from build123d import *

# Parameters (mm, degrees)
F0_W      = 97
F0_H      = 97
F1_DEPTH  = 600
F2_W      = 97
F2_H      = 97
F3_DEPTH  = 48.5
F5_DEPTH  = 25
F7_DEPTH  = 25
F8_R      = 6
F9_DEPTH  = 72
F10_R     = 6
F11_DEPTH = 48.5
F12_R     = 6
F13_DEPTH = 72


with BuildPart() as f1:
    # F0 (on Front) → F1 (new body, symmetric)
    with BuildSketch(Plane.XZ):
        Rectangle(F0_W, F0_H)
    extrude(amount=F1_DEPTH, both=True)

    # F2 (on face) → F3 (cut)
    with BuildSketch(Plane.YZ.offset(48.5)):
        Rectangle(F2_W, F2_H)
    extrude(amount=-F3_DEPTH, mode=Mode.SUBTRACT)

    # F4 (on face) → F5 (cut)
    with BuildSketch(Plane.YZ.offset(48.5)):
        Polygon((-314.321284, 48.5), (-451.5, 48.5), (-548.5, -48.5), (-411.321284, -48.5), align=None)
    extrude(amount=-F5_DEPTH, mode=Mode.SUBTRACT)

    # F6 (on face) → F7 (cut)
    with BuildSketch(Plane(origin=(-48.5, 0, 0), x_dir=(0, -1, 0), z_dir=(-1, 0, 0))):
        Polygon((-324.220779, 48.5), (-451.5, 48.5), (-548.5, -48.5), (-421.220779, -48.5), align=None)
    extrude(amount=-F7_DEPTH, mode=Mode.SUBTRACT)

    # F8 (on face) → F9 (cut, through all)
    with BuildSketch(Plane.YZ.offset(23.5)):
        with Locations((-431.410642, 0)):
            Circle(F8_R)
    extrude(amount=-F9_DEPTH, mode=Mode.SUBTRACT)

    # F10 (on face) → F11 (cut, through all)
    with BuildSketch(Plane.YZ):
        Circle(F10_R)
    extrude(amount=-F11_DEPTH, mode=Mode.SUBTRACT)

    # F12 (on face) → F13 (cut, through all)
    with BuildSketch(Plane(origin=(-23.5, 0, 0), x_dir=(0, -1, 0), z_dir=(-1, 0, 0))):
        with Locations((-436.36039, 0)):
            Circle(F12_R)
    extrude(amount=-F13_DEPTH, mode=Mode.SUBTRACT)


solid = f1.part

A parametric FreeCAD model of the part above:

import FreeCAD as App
import Part
import Sketcher
from FreeCAD import Vector
Q = App.Units.Quantity

doc = App.newDocument("Part")
body = doc.addObject("PartDesign::Body", "Body")

# Sketch on XZ plane
sketch1 = body.newObject("Sketcher::SketchObject", "Sketch")
sketch1.AttachmentSupport = (doc.getObject("XZ_Plane"), [""])
sketch1.MapMode = "FlatFace"
sketch1.addGeometry(Part.LineSegment(Vector(-48.5, 48.5, 0), Vector(-48.5, -48.5, 0)), False)
sketch1.addGeometry(Part.LineSegment(Vector(-48.5, -48.5, 0), Vector(48.5, -48.5, 0)), False)
sketch1.addGeometry(Part.LineSegment(Vector(48.5, -48.5, 0), Vector(48.5, 48.5, 0)), False)
sketch1.addGeometry(Part.LineSegment(Vector(48.5, 48.5, 0), Vector(-48.5, 48.5, 0)), False)
sketch1.addConstraint(Sketcher.Constraint("Coincident", 0, 2, 1, 1))
sketch1.addConstraint(Sketcher.Constraint("Coincident", 1, 2, 2, 1))
sketch1.addConstraint(Sketcher.Constraint("Coincident", 2, 2, 3, 1))
sketch1.addConstraint(Sketcher.Constraint("Coincident", 3, 2, 0, 1))
sketch1.addConstraint(Sketcher.Constraint("Vertical", 0))
sketch1.addConstraint(Sketcher.Constraint("Horizontal", 1))
sketch1.addConstraint(Sketcher.Constraint("Vertical", 2))
sketch1.addConstraint(Sketcher.Constraint("Horizontal", 3))
sketch1.addConstraint(Sketcher.Constraint("Symmetric", 0, 2, 2, 2, -1, 1))
sketch1.addConstraint(Sketcher.Constraint("Equal", 3, 0))
sketch1.addConstraint(Sketcher.Constraint("DistanceX", 1, 1, 1, 2, Q("97 mm")))
pad1 = body.newObject("PartDesign::Pad", "Pad")
pad1.Profile = sketch1
pad1.Length = 1200
pad1.Midplane = True

# Sketch on YZ plane
sketch2 = body.newObject("Sketcher::SketchObject", "Sketch001")
sketch2.AttachmentSupport = (doc.getObject("YZ_Plane"), [""])
sketch2.MapMode = "FlatFace"
sketch2.AttachmentOffset = App.Placement(Vector(0, 0, 48.5), App.Rotation())
sketch2.addGeometry(Part.LineSegment(Vector(-48.5, 48.5, 0), Vector(-48.5, -48.5, 0)), False)
sketch2.addGeometry(Part.LineSegment(Vector(-48.5, -48.5, 0), Vector(48.5, -48.5, 0)), False)
sketch2.addGeometry(Part.LineSegment(Vector(48.5, -48.5, 0), Vector(48.5, 48.5, 0)), False)
sketch2.addGeometry(Part.LineSegment(Vector(48.5, 48.5, 0), Vector(-48.5, 48.5, 0)), False)
sketch2.addConstraint(Sketcher.Constraint("Coincident", 0, 2, 1, 1))
sketch2.addConstraint(Sketcher.Constraint("Coincident", 1, 2, 2, 1))
sketch2.addConstraint(Sketcher.Constraint("Coincident", 2, 2, 3, 1))
sketch2.addConstraint(Sketcher.Constraint("Coincident", 3, 2, 0, 1))
sketch2.addConstraint(Sketcher.Constraint("Vertical", 0))
sketch2.addConstraint(Sketcher.Constraint("Horizontal", 1))
sketch2.addConstraint(Sketcher.Constraint("Vertical", 2))
sketch2.addConstraint(Sketcher.Constraint("Horizontal", 3))
sketch2.addConstraint(Sketcher.Constraint("Symmetric", 0, 2, 2, 2, -1, 1))
sketch2.addConstraint(Sketcher.Constraint("Equal", 3, 0))
sketch2.addConstraint(Sketcher.Constraint("DistanceX", 1, 1, 1, 2, Q("97 mm")))
pocket1 = body.newObject("PartDesign::Pocket", "Pocket")
pocket1.Profile = sketch2
pocket1.Length = 48.5

# Sketch on YZ plane
sketch3 = body.newObject("Sketcher::SketchObject", "Sketch002")
sketch3.AttachmentSupport = (doc.getObject("YZ_Plane"), [""])
sketch3.MapMode = "FlatFace"
sketch3.AttachmentOffset = App.Placement(Vector(0, 0, 48.5), App.Rotation())
sketch3.addGeometry(Part.LineSegment(Vector(-314.321284, 48.5, 0), Vector(-451.5, 48.5, 0)), False)
sketch3.addGeometry(Part.LineSegment(Vector(-451.5, 48.5, 0), Vector(-548.5, -48.5, 0)), False)
sketch3.addGeometry(Part.LineSegment(Vector(-548.5, -48.5, 0), Vector(-411.321284, -48.5, 0)), False)
sketch3.addGeometry(Part.LineSegment(Vector(-411.321284, -48.5, 0), Vector(-314.321284, 48.5, 0)), False)
sketch3.addConstraint(Sketcher.Constraint("Coincident", 0, 2, 1, 1))
sketch3.addConstraint(Sketcher.Constraint("Coincident", 1, 2, 2, 1))
sketch3.addConstraint(Sketcher.Constraint("Coincident", 2, 2, 3, 1))
sketch3.addConstraint(Sketcher.Constraint("Coincident", 3, 2, 0, 1))
sketch3.addConstraint(Sketcher.Constraint("Horizontal", 0))
sketch3.addConstraint(Sketcher.Constraint("Horizontal", 2))
sketch3.addConstraint(Sketcher.Constraint("Parallel", 1, 3))
sketch3.addConstraint(Sketcher.Constraint("Angle", 1, Q("-135 deg")))
sketch3.addConstraint(Sketcher.Constraint("DistanceX", 1, 2, 0, 2, Q("97 mm")))
sketch3.addConstraint(Sketcher.Constraint("DistanceX", 0, 2, -1, 1, Q("451.5 mm")))
sketch3.addConstraint(Sketcher.Constraint("DistanceY", -1, 1, 0, 2, Q("48.5 mm")))
sketch3.addConstraint(Sketcher.Constraint("DistanceX", 0, 2, 0, 1, Q("137.178716 mm")))
pocket2 = body.newObject("PartDesign::Pocket", "Pocket001")
pocket2.Profile = sketch3
pocket2.Length = 25

# Sketch on YZ plane
sketch4 = body.newObject("Sketcher::SketchObject", "Sketch003")
sketch4.AttachmentSupport = (doc.getObject("YZ_Plane"), [""])
sketch4.MapMode = "FlatFace"
sketch4.AttachmentOffset = App.Placement(Vector(0, 0, -48.5), App.Rotation())
sketch4.addGeometry(Part.LineSegment(Vector(324.220779, 48.5, 0), Vector(451.5, 48.5, 0)), False)
sketch4.addGeometry(Part.LineSegment(Vector(451.5, 48.5, 0), Vector(548.5, -48.5, 0)), False)
sketch4.addGeometry(Part.LineSegment(Vector(548.5, -48.5, 0), Vector(421.220779, -48.5, 0)), False)
sketch4.addGeometry(Part.LineSegment(Vector(421.220779, -48.5, 0), Vector(324.220779, 48.5, 0)), False)
sketch4.addConstraint(Sketcher.Constraint("Coincident", 0, 2, 1, 1))
sketch4.addConstraint(Sketcher.Constraint("Coincident", 1, 2, 2, 1))
sketch4.addConstraint(Sketcher.Constraint("Coincident", 2, 2, 3, 1))
sketch4.addConstraint(Sketcher.Constraint("Coincident", 3, 2, 0, 1))
sketch4.addConstraint(Sketcher.Constraint("Horizontal", 0))
sketch4.addConstraint(Sketcher.Constraint("Horizontal", 2))
sketch4.addConstraint(Sketcher.Constraint("Parallel", 1, 3))
sketch4.addConstraint(Sketcher.Constraint("Angle", 1, Q("-45 deg")))
sketch4.addConstraint(Sketcher.Constraint("DistanceX", 0, 2, 1, 2, Q("97 mm")))
sketch4.addConstraint(Sketcher.Constraint("DistanceX", -1, 1, 0, 2, Q("451.5 mm")))
sketch4.addConstraint(Sketcher.Constraint("DistanceY", -1, 1, 0, 2, Q("48.5 mm")))
sketch4.addConstraint(Sketcher.Constraint("DistanceX", 0, 1, 0, 2, Q("127.279221 mm")))
pocket3 = body.newObject("PartDesign::Pocket", "Pocket002")
pocket3.Profile = sketch4
pocket3.Length = 25
pocket3.Reversed = True

# Sketch on YZ plane
sketch5 = body.newObject("Sketcher::SketchObject", "Sketch004")
sketch5.AttachmentSupport = (doc.getObject("YZ_Plane"), [""])
sketch5.MapMode = "FlatFace"
sketch5.AttachmentOffset = App.Placement(Vector(0, 0, 23.5), App.Rotation())
sketch5.addGeometry(Part.Circle(Vector(-431.410642, 0, 0), Vector(0, 0, 1), 6), False)
sketch5.addConstraint(Sketcher.Constraint("PointOnObject", 0, 3, -1))
sketch5.addConstraint(Sketcher.Constraint("Diameter", 0, Q("12 mm")))
sketch5.addConstraint(Sketcher.Constraint("DistanceX", 0, 3, -1, 1, Q("431.410642 mm")))
pocket4 = body.newObject("PartDesign::Pocket", "Pocket003")
pocket4.Profile = sketch5
pocket4.Type = "ThroughAll"

# Sketch on YZ plane
sketch6 = body.newObject("Sketcher::SketchObject", "Sketch005")
sketch6.AttachmentSupport = (doc.getObject("YZ_Plane"), [""])
sketch6.MapMode = "FlatFace"
sketch6.addGeometry(Part.Circle(Vector(0, 0, 0), Vector(0, 0, 1), 6), False)
sketch6.addConstraint(Sketcher.Constraint("Coincident", 0, 3, -1, 1))
sketch6.addConstraint(Sketcher.Constraint("Diameter", 0, Q("12 mm")))
pocket5 = body.newObject("PartDesign::Pocket", "Pocket004")
pocket5.Profile = sketch6
pocket5.Type = "ThroughAll"

# Sketch on YZ plane
sketch7 = body.newObject("Sketcher::SketchObject", "Sketch006")
sketch7.AttachmentSupport = (doc.getObject("YZ_Plane"), [""])
sketch7.MapMode = "FlatFace"
sketch7.AttachmentOffset = App.Placement(Vector(0, 0, -23.5), App.Rotation())
sketch7.addGeometry(Part.Circle(Vector(436.36039, 0, 0), Vector(0, 0, 1), 6), False)
sketch7.addConstraint(Sketcher.Constraint("PointOnObject", 0, 3, -1))
sketch7.addConstraint(Sketcher.Constraint("Diameter", 0, Q("12 mm")))
sketch7.addConstraint(Sketcher.Constraint("DistanceX", -1, 1, 0, 3, Q("436.36039 mm")))
pocket6 = body.newObject("PartDesign::Pocket", "Pocket005")
pocket6.Profile = sketch7
pocket6.Type = "ThroughAll"
pocket6.Reversed = True

doc.recompute()
